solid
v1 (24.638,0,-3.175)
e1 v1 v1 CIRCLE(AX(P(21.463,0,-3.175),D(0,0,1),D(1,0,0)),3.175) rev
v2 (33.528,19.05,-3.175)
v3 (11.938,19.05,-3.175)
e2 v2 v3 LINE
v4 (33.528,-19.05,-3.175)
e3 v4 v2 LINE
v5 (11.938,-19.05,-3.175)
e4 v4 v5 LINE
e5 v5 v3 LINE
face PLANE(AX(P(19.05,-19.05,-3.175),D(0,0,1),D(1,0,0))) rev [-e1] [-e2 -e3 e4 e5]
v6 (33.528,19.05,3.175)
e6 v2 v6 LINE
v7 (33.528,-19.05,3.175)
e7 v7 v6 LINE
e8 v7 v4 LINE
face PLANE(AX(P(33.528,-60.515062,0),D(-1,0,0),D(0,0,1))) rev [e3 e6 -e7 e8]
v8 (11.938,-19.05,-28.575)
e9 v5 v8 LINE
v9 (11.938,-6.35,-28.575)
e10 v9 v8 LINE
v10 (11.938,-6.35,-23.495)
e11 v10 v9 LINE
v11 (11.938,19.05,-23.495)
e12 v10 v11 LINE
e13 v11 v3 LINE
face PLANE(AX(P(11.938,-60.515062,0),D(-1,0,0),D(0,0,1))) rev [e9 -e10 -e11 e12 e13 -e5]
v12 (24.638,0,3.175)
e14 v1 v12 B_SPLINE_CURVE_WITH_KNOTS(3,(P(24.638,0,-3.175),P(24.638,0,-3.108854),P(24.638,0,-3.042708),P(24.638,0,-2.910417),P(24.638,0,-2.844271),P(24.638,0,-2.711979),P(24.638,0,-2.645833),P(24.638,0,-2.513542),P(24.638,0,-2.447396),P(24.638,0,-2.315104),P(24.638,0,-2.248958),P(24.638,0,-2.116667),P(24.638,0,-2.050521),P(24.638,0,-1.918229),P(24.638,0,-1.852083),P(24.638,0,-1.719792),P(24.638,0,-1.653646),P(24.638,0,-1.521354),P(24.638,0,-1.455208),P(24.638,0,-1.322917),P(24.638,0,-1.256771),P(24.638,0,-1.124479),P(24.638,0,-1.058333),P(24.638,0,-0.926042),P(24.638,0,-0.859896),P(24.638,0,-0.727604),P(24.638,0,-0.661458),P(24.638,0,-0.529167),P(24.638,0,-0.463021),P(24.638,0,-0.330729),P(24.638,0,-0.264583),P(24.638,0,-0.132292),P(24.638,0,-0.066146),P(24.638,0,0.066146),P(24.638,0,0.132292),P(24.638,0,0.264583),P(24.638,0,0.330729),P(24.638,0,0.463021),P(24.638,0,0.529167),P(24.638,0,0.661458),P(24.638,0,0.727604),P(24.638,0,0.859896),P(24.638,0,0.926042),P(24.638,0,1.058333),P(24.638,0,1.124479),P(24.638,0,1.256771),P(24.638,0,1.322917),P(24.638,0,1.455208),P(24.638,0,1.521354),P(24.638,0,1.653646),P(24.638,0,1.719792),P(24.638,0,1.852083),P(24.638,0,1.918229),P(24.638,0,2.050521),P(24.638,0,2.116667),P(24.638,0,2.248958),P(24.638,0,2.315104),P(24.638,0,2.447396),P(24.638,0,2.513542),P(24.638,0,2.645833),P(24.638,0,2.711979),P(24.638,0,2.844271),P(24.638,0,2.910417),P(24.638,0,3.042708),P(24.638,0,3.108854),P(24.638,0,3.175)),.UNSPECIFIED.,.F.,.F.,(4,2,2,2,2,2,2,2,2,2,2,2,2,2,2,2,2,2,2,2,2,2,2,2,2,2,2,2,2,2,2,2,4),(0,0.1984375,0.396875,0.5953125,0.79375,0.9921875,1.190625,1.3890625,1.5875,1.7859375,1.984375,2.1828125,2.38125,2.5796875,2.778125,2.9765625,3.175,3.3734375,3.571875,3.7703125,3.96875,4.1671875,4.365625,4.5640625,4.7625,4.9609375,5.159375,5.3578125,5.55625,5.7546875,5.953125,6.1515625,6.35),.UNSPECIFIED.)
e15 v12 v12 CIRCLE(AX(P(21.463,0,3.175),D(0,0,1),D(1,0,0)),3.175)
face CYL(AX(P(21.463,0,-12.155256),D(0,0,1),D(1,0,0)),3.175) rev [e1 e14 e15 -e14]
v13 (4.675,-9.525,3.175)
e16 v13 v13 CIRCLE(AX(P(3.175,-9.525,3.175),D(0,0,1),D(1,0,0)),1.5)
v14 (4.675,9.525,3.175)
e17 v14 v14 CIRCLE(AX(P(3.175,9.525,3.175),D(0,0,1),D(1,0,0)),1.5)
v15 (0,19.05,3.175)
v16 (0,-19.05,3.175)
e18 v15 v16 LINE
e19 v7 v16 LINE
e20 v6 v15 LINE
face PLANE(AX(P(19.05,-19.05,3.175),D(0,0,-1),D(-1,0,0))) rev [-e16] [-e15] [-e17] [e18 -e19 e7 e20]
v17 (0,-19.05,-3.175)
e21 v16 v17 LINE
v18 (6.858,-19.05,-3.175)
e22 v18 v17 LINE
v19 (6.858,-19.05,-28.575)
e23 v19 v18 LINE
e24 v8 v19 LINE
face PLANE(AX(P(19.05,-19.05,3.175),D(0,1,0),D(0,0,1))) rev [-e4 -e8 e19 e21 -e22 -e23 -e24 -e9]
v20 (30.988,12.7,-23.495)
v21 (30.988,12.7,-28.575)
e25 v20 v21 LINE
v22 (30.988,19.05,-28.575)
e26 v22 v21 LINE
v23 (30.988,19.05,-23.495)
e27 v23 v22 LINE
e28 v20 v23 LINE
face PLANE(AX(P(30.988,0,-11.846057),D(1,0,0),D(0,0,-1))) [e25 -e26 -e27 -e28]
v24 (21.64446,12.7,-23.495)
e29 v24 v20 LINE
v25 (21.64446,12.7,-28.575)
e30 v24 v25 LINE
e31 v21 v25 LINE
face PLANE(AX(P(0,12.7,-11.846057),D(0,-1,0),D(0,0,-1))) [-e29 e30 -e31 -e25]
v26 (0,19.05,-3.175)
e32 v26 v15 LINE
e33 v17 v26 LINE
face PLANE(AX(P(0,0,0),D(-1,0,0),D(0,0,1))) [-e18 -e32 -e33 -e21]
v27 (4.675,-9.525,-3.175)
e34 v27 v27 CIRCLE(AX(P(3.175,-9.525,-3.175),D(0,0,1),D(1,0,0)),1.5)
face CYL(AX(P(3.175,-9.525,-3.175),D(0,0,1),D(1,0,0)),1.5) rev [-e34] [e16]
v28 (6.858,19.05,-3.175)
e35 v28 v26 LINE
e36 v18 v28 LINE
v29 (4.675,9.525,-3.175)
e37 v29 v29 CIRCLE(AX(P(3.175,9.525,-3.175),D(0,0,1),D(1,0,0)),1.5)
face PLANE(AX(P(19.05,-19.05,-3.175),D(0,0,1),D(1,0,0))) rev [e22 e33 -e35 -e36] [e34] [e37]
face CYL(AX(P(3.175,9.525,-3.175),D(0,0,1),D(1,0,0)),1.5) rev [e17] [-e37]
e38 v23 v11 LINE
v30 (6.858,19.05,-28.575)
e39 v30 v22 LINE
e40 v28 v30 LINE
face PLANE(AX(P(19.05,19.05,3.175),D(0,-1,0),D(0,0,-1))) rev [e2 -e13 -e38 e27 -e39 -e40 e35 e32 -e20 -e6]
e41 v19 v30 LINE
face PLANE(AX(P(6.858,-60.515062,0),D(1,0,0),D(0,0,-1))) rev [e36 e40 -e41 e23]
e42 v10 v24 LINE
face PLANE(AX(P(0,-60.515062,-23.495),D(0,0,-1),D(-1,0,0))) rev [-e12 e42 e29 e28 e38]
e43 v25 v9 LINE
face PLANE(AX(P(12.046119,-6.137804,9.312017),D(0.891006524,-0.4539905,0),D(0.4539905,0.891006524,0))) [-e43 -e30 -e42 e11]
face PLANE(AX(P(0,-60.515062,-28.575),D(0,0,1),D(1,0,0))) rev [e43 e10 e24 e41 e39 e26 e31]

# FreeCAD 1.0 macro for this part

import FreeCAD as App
import Part
import Sketcher

V = App.Vector
Q = App.Units.Quantity

doc = App.newDocument("Part")
body = doc.addObject("PartDesign::Body", "Body")

sketch1 = body.newObject("Sketcher::SketchObject", "Sketch")
sketch1.AttachmentSupport = (doc.getObject("YZ_Plane"), [""])
sketch1.MapMode = "FlatFace"
sketch1.addGeometry([
    Part.LineSegment(V(19, 3, 0), V(-19, 3, 0)),
    Part.LineSegment(V(-19, 3, 0), V(-19, -3, 0)),
    Part.LineSegment(V(-19, -3, 0), V(19, -3, 0)),
    Part.LineSegment(V(19, -3, 0), V(19, 3, 0)),
], False)
sketch1.addConstraint([
    Sketcher.Constraint("Coincident", 0, 2, 1, 1),
    Sketcher.Constraint("Coincident", 1, 2, 2, 1),
    Sketcher.Constraint("Coincident", 2, 2, 3, 1),
    Sketcher.Constraint("Coincident", 3, 2, 0, 1),
    Sketcher.Constraint("Horizontal", 0),
    Sketcher.Constraint("Vertical", 1),
    Sketcher.Constraint("Horizontal", 2),
    Sketcher.Constraint("Vertical", 3),
    Sketcher.Constraint("Symmetric", 0, 2, 2, 2, -1, 1),
    Sketcher.Constraint("DistanceX", 0, 2, 0, 1, Q("1.5 in")),
    Sketcher.Constraint("DistanceY", 1, 2, 1, 1, Q("0.25 in")),
])
pad1 = body.newObject("PartDesign::Pad", "Pad")
pad1.Profile = sketch1
pad1.Length = Q("0.75 in")

sketch2 = body.newObject("Sketcher::SketchObject", "Sketch001")
sketch2.AttachmentSupport = (doc.getObject("XY_Plane"), [""])
sketch2.MapMode = "FlatFace"
sketch2.AttachmentOffset = App.Placement(V(0, 0, 0.125 * 25.4), App.Rotation())
sketch2.addGeometry([
    Part.Circle(V(3.2, 9.5, 0), V(0, 0, 1), 1.5),
    Part.Circle(V(3.2, -9.5, 0), V(0, 0, 1), 1.5),
], False)
sketch2.addConstraint([
    Sketcher.Constraint("Equal", 0, 1),
    Sketcher.Constraint("Symmetric", 0, 3, 1, 3, -1),
    Sketcher.Constraint("Diameter", 0, Q("3 mm")),
    Sketcher.Constraint("DistanceY", 1, 3, 0, 3, Q("0.75 in")),
    Sketcher.Constraint("DistanceX", -1, 1, 0, 3, Q("0.125 in")),
])
pocket1 = body.newObject("PartDesign::Pocket", "Pocket")
pocket1.Profile = sketch2
pocket1.Type = "ThroughAll"

sketch3 = body.newObject("Sketcher::SketchObject", "Sketch002")
sketch3.AttachmentSupport = (doc.getObject("XZ_Plane"), [""])
sketch3.MapMode = "FlatFace"
sketch3.AttachmentOffset = App.Placement(V(0, 0, -0.75 * 25.4), App.Rotation())
sketch3.addGeometry([
    Part.LineSegment(V(34, 3, 0), V(34, -3, 0)),
    Part.LineSegment(V(34, -3, 0), V(12, -3, 0)),
    Part.LineSegment(V(12, -3, 0), V(12, -23, 0)),
    Part.LineSegment(V(12, -23, 0), V(21, -23, 0)),
    Part.LineSegment(V(21, -23, 0), V(21, -29, 0)),
    Part.LineSegment(V(21, -29, 0), V(7, -29, 0)),
    Part.LineSegment(V(7, -29, 0), V(7, 3, 0)),
    Part.LineSegment(V(7, 3, 0), V(34, 3, 0)),
], False)
sketch3.addConstraint([
    Sketcher.Constraint("Coincident", 0, 2, 1, 1),
    Sketcher.Constraint("Coincident", 1, 2, 2, 1),
    Sketcher.Constraint("Coincident", 2, 2, 3, 1),
    Sketcher.Constraint("Coincident", 3, 2, 4, 1),
    Sketcher.Constraint("Coincident", 4, 2, 5, 1),
    Sketcher.Constraint("Coincident", 5, 2, 6, 1),
    Sketcher.Constraint("Coincident", 6, 2, 7, 1),
    Sketcher.Constraint("Coincident", 7, 2, 0, 1),
    Sketcher.Constraint("Vertical", 0),
    Sketcher.Constraint("Horizontal", 1),
    Sketcher.Constraint("Vertical", 2),
    Sketcher.Constraint("Horizontal", 3),
    Sketcher.Constraint("Vertical", 4),
    Sketcher.Constraint("Horizontal", 5),
    Sketcher.Constraint("Vertical", 6),
    Sketcher.Constraint("Horizontal", 7),
    Sketcher.Constraint("DistanceY", 2, 2, 2, 1, Q("0.8 in")),
    Sketcher.Constraint("DistanceY", 4, 2, 4, 1, Q("0.2 in")),
    Sketcher.Constraint("DistanceX", 1, 2, 1, 1, Q("0.85 in")),
    Sketcher.Constraint("DistanceX", 7, 1, 7, 2, Q("1.05 in")),
    Sketcher.Constraint("DistanceY", 0, 2, 0, 1, Q("0.25 in")),
    Sketcher.Constraint("DistanceX", 3, 1, 3, 2, Q("0.375 in")),
    Sketcher.Constraint("DistanceX", -1, 1, 0, 2, Q("1.32 in")),
    Sketcher.Constraint("DistanceY", 0, 2, -1, 1, Q("0.125 in")),
])
pad2 = body.newObject("PartDesign::Pad", "Pad001")
pad2.Profile = sketch3
pad2.Length = Q("1.5 in")

sketch4 = body.newObject("Sketcher::SketchObject", "Sketch003")
sketch4.AttachmentSupport = (doc.getObject("XY_Plane"), [""])
sketch4.MapMode = "FlatFace"
sketch4.AttachmentOffset = App.Placement(V(0, 0, 0.125 * 25.4), App.Rotation())
sketch4.addGeometry(Part.Circle(V(21.5, 0, 0), V(0, 0, 1), 3.2), False)
sketch4.addConstraint([
    Sketcher.Constraint("PointOnObject", 0, 3, -1),
    Sketcher.Constraint("Diameter", 0, Q("0.25 in")),
    Sketcher.Constraint("DistanceX", -1, 1, 0, 3, Q("0.845 in")),
])
pocket2 = body.newObject("PartDesign::Pocket", "Pocket001")
pocket2.Profile = sketch4
pocket2.Length = Q("0.25 in")

sketch5 = body.newObject("Sketcher::SketchObject", "Sketch004")
sketch5.AttachmentSupport = (doc.getObject("XY_Plane"), [""])
sketch5.MapMode = "FlatFace"
sketch5.AttachmentOffset = App.Placement(V(0, 0, -1.125 * 25.4), App.Rotation())
sketch5.addGeometry([
    Part.LineSegment(V(21, -19, 0), V(12, -19, 0)),
    Part.LineSegment(V(12, -19, 0), V(12, -6, 0)),
    Part.LineSegment(V(12, -6, 0), V(21, 12, 0)),
    Part.LineSegment(V(21, 12, 0), V(21, -19, 0)),
], False)
sketch5.addConstraint([
    Sketcher.Constraint("Coincident", 0, 2, 1, 1),
    Sketcher.Constraint("Coincident", 1, 2, 2, 1),
    Sketcher.Constraint("Coincident", 2, 2, 3, 1),
    Sketcher.Constraint("Coincident", 3, 2, 0, 1),
    Sketcher.Constraint("Horizontal", 0),
    Sketcher.Constraint("Vertical", 1),
    Sketcher.Constraint("Vertical", 3),
    Sketcher.Constraint("DistanceY", 1, 1, 1, 2, Q("0.5 in")),
    Sketcher.Constraint("Angle", 2, Q("63 deg")),
    Sketcher.Constraint("DistanceX", 0, 2, 0, 1, Q("0.375 in")),
    Sketcher.Constraint("DistanceX", -1, 1, 0, 2, Q("0.47 in")),
    Sketcher.Constraint("DistanceY", 0, 2, -1, 1, Q("0.75 in")),
])
pocket3 = body.newObject("PartDesign::Pocket", "Pocket002")
pocket3.Profile = sketch5
pocket3.Length = Q("0.2 in")
pocket3.Reversed = True

sketch6 = body.newObject("Sketcher::SketchObject", "Sketch005")
sketch6.AttachmentSupport = (doc.getObject("XY_Plane"), [""])
sketch6.MapMode = "FlatFace"
sketch6.AttachmentOffset = App.Placement(V(0, 0, -1.125 * 25.4), App.Rotation())
sketch6.addGeometry([
    Part.LineSegment(V(21.46, 12.34, 0), V(21.46, 19.05, 0)),
    Part.LineSegment(V(21.46, 19.05, 0), V(30.99, 19.05, 0)),
    Part.LineSegment(V(30.99, 19.05, 0), V(30.99, 12.7, 0)),
    Part.LineSegment(V(30.99, 12.7, 0), V(21.64, 12.7, 0)),
    Part.LineSegment(V(21.64, 12.7, 0), V(21.46, 12.34, 0)),
], False)
sketch6.addConstraint([
    Sketcher.Constraint("Coincident", 0, 2, 1, 1),
    Sketcher.Constraint("Coincident", 1, 2, 2, 1),
    Sketcher.Constraint("Coincident", 2, 2, 3, 1),
    Sketcher.Constraint("Coincident", 3, 2, 4, 1),
    Sketcher.Constraint("Coincident", 4, 2, 0, 1),
    Sketcher.Constraint("Vertical", 0),
    Sketcher.Constraint("Horizontal", 1),
    Sketcher.Constraint("Vertical", 2),
    Sketcher.Constraint("Horizontal", 3),
    Sketcher.Constraint("Angle", 4, Q("-117 deg")),
    Sketcher.Constraint("DistanceY", 2, 2, 2, 1, Q("0.25 in")),
    Sketcher.Constraint("DistanceY", -1, 1, 2, 2, Q("0.5 in")),
    Sketcher.Constraint("DistanceX", 1, 1, 1, 2, Q("0.375 in")),
    Sketcher.Constraint("DistanceX", -1, 1, 1, 2, Q("1.22 in")),
    Sketcher.Constraint("Distance", 4, Q("0.3997 mm")),
])
pad3 = body.newObject("PartDesign::Pad", "Pad002")
pad3.Profile = sketch6
pad3.Length = Q("0.2 in")

doc.recompute()
